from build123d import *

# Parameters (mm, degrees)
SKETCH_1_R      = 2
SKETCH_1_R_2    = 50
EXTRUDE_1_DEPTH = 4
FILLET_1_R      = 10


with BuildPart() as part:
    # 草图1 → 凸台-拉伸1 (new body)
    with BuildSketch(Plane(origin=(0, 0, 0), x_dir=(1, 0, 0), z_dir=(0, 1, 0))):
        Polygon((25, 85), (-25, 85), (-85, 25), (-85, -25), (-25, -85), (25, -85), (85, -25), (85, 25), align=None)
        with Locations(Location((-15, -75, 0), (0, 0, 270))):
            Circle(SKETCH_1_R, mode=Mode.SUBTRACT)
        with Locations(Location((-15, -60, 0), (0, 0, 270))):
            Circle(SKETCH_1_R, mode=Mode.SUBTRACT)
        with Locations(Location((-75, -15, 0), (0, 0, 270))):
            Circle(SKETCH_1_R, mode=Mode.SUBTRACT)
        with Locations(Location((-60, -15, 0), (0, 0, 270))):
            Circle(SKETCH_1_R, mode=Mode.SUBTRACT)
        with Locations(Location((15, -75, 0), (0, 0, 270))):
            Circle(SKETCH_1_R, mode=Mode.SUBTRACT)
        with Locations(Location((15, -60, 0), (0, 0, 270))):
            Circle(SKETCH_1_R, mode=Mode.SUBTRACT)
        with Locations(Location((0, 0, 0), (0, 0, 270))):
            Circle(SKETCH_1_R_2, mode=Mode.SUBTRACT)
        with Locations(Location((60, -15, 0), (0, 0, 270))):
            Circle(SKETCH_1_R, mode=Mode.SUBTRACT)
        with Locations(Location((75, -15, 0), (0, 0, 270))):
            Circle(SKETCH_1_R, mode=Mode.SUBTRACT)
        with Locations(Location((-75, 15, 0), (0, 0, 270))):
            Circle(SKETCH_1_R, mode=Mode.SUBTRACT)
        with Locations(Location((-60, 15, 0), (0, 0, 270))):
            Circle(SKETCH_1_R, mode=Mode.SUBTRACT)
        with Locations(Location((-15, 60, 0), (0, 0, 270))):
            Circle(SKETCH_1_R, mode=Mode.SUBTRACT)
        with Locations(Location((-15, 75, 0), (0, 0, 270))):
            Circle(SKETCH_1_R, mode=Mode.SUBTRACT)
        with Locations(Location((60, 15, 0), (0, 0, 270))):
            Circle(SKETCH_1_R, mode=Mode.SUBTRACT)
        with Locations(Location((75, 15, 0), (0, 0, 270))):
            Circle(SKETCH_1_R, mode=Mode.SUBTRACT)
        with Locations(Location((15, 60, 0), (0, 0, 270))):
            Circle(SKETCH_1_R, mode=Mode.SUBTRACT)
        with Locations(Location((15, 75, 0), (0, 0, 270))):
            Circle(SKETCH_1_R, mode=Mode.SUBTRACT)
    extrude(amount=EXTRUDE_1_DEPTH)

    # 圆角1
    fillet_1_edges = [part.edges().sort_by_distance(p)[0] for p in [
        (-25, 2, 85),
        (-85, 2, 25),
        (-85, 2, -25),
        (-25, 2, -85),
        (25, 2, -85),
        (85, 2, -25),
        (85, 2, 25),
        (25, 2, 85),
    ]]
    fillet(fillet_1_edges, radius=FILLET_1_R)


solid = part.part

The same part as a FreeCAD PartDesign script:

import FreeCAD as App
import Part
import Sketcher
from FreeCAD import Vector


def edges_at(feature, points):
    """Names of the edges that pass closest to the given points."""
    edges = feature.Shape.Edges
    near = lambda p: min(range(len(edges)), key=lambda i: edges[i].distToShape(Part.Vertex(*p))[0])
    return sorted({f"Edge{near(p) + 1}" for p in points})


def add_polygon(sketch, points):
    """Adds a closed chain of lines whose ends are joined by coincident constraints."""
    first, n = sketch.GeometryCount, len(points)
    for a, b in zip(points, points[1:] + points[:1]):
        sketch.addGeometry(Part.LineSegment(App.Vector(*a, 0), App.Vector(*b, 0)), False)
    for i in range(n):
        sketch.addConstraint(Sketcher.Constraint("Coincident", first + i, 2, first + (i + 1) % n, 1))

doc = App.newDocument("Part")
body = doc.addObject("PartDesign::Body", "Body")

# Sketch on XZ plane
sketch1 = body.newObject("Sketcher::SketchObject", "Sketch")
sketch1.AttachmentSupport = (doc.getObject("XZ_Plane"), [""])
sketch1.MapMode = "FlatFace"
add_polygon(sketch1, [(25, -85), (-25, -85), (-85, -25), (-85, 25), (-25, 85), (25, 85), (85, 25), (85, -25)])  # lines 0-7
sketch1.addGeometry(Part.Circle(Vector(-15, 75, 0), Vector(0, 0, 1), 2), False)  # 8
sketch1.addGeometry(Part.Circle(Vector(-15, 60, 0), Vector(0, 0, 1), 2), False)  # 9
sketch1.addGeometry(Part.Circle(Vector(-75, 15, 0), Vector(0, 0, 1), 2), False)  # 10
sketch1.addGeometry(Part.Circle(Vector(-60, 15, 0), Vector(0, 0, 1), 2), False)  # 11
sketch1.addGeometry(Part.Circle(Vector(15, 75, 0), Vector(0, 0, 1), 2), False)  # 12
sketch1.addGeometry(Part.Circle(Vector(15, 60, 0), Vector(0, 0, 1), 2), False)  # 13
sketch1.addGeometry(Part.Circle(Vector(60, 15, 0), Vector(0, 0, 1), 2), False)  # 14
sketch1.addGeometry(Part.Circle(Vector(75, 15, 0), Vector(0, 0, 1), 2), False)  # 15
sketch1.addGeometry(Part.Circle(Vector(-75, -15, 0), Vector(0, 0, 1), 2), False)  # 16
sketch1.addGeometry(Part.Circle(Vector(-60, -15, 0), Vector(0, 0, 1), 2), False)  # 17
sketch1.addGeometry(Part.Circle(Vector(-15, -60, 0), Vector(0, 0, 1), 2), False)  # 18
sketch1.addGeometry(Part.Circle(Vector(-15, -75, 0), Vector(0, 0, 1), 2), False)  # 19
sketch1.addGeometry(Part.Circle(Vector(0, 0, 0), Vector(0, 0, 1), 50), False)  # 20
sketch1.addGeometry(Part.Circle(Vector(60, -15, 0), Vector(0, 0, 1), 2), False)  # 21
sketch1.addGeometry(Part.Circle(Vector(75, -15, 0), Vector(0, 0, 1), 2), False)  # 22
sketch1.addGeometry(Part.Circle(Vector(15, -60, 0), Vector(0, 0, 1), 2), False)  # 23
sketch1.addGeometry(Part.Circle(Vector(15, -75, 0), Vector(0, 0, 1), 2), False)  # 24
sketch1.addConstraint([
    Sketcher.Constraint("Horizontal", 0),
    Sketcher.Constraint("Vertical", 2),
    Sketcher.Constraint("Horizontal", 4),
    Sketcher.Constraint("Vertical", 6),
    Sketcher.Constraint("Coincident", 20, 3, -1, 1),
    Sketcher.Constraint("Equal", 8, 9),
    Sketcher.Constraint("Equal", 9, 10),
    Sketcher.Constraint("Equal", 10, 11),
    Sketcher.Constraint("Equal", 11, 12),
    Sketcher.Constraint("Equal", 12, 13),
    Sketcher.Constraint("Equal", 13, 14),
    Sketcher.Constraint("Equal", 14, 15),
    Sketcher.Constraint("Equal", 15, 16),
    Sketcher.Constraint("Equal", 16, 17),
    Sketcher.Constraint("Equal", 17, 18),
    Sketcher.Constraint("Equal", 18, 19),
    Sketcher.Constraint("Equal", 19, 21),
    Sketcher.Constraint("Equal", 21, 22),
    Sketcher.Constraint("Equal", 22, 23),
    Sketcher.Constraint("Equal", 23, 24),
    Sketcher.Constraint("Symmetric", 15, 3, 16, 3, -1, 1),
    Sketcher.Constraint("Symmetric", 14, 3, 17, 3, -1, 1),
    Sketcher.Constraint("Symmetric", 13, 3, 18, 3, -1, 1),
    Sketcher.Constraint("Symmetric", 12, 3, 19, 3, -1, 1),
    Sketcher.Constraint("Symmetric", 11, 3, 21, 3, -1, 1),
    Sketcher.Constraint("Symmetric", 10, 3, 22, 3, -1, 1),
    Sketcher.Constraint("Symmetric", 9, 3, 23, 3, -1, 1),
    Sketcher.Constraint("Symmetric", 8, 3, 24, 3, -1, 1),
    Sketcher.Constraint("Symmetric", 0, 2, 4, 2, -1, 1),
    Sketcher.Constraint("Symmetric", 1, 2, 5, 2, -1, 1),
    Sketcher.Constraint("Symmetric", 8, 3, 12, 3, -2),
    Sketcher.Constraint("Symmetric", 9, 3, 13, 3, -2),
    Sketcher.Constraint("Symmetric", 11, 3, 14, 3, -2),
    Sketcher.Constraint("Symmetric", 10, 3, 15, 3, -2),
    Sketcher.Constraint("Perpendicular", 1, 3),
    Sketcher.Constraint("Perpendicular", 5, 7),
    Sketcher.Constraint("Horizontal", 10, 3, 11, 3),
    Sketcher.Constraint("Horizontal", 2, 2, 5, 2),
    Sketcher.Constraint("Horizontal", 1, 2, 6, 2),
    Sketcher.Constraint("Vertical", 8, 3, 9, 3),
    Sketcher.Constraint("Vertical", 0, 2, 3, 2),
    Sketcher.Constraint("Equal", 4, 2),
    Sketcher.Constraint("Diameter", 8, 4.0),
    Sketcher.Constraint("Diameter", 20, 100.0),
    Sketcher.Constraint("DistanceX", 0, 2, 0, 1, 50.0),
    Sketcher.Constraint("DistanceX", 8, 3, -1, 1, 15.0),
    Sketcher.Constraint("DistanceY", -1, 1, 8, 3, 75.0),
    Sketcher.Constraint("DistanceY", -1, 1, 9, 3, 60.0),
    Sketcher.Constraint("DistanceX", 10, 3, -1, 1, 75.0),
    Sketcher.Constraint("DistanceY", -1, 1, 10, 3, 15.0),
    Sketcher.Constraint("DistanceX", 11, 3, -1, 1, 60.0),
    Sketcher.Constraint("DistanceY", 0, 2, -1, 1, 85.0),
])
pad1 = body.newObject("PartDesign::Pad", "Pad")
pad1.Profile = sketch1
pad1.Length = 4
pad1.Reversed = True
doc.recompute()

fillet = body.newObject("PartDesign::Fillet", "Fillet")
fillet.Base = (pad1, edges_at(pad1, [
    (-25, 2, 85),
    (-85, 2, 25),
    (-85, 2, -25),
    (-25, 2, -85),
    (25, 2, -85),
    (85, 2, -25),
    (85, 2, 25),
    (25, 2, 85),
]))
fillet.Radius = 10

doc.recompute()
